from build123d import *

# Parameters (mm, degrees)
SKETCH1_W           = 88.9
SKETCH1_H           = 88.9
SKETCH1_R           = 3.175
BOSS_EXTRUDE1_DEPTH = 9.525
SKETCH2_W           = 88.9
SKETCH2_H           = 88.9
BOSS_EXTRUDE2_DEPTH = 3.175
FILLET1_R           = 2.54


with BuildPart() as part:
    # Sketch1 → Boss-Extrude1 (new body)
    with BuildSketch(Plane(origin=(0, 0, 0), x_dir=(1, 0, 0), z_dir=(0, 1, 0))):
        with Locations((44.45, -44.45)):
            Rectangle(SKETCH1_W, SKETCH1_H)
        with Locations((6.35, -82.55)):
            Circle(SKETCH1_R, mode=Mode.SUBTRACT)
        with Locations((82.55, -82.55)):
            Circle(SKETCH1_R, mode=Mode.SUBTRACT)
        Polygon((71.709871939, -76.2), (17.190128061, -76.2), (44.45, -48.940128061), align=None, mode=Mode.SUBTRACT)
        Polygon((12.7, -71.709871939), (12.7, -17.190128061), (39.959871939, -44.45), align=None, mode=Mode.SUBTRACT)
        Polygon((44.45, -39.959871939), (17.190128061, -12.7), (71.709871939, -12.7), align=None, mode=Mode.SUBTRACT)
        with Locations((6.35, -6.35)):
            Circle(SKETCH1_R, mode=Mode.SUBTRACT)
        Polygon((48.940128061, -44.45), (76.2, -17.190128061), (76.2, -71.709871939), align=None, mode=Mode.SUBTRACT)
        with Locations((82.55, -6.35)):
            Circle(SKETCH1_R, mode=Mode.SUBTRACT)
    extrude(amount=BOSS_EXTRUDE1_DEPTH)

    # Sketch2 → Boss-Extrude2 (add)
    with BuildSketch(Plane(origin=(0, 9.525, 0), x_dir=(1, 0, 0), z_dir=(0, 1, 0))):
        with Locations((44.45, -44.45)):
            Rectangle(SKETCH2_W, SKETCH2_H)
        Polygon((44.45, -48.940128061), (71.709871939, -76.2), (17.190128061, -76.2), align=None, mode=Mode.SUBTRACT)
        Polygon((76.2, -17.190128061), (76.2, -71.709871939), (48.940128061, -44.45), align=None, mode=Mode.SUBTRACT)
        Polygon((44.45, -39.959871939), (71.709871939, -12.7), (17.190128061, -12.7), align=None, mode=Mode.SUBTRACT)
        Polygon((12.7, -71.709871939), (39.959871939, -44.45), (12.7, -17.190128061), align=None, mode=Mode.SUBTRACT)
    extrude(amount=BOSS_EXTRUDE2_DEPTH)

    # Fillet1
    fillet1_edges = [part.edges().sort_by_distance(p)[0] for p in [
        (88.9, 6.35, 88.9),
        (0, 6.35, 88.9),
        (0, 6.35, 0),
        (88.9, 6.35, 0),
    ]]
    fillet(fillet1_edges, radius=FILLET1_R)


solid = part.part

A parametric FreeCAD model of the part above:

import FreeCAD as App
import Part
import Sketcher
Q = App.Units.Quantity


def edges_at(feature, points):
    """Names of the edges that pass closest to the given points."""
    edges = feature.Shape.Edges
    near = lambda p: min(range(len(edges)), key=lambda i: edges[i].distToShape(Part.Vertex(*p))[0])
    return sorted({f"Edge{near(p) + 1}" for p in points})


def add_polygon(sketch, points):
    """Adds a closed chain of lines whose ends are joined by coincident constraints."""
    first, n = sketch.GeometryCount, len(points)
    for a, b in zip(points, points[1:] + points[:1]):
        sketch.addGeometry(Part.LineSegment(App.Vector(*a, 0), App.Vector(*b, 0)), False)
    for i in range(n):
        sketch.addConstraint(Sketcher.Constraint("Coincident", first + i, 2, first + (i + 1) % n, 1))

doc = App.newDocument("Part")
body = doc.addObject("PartDesign::Body", "Body")

# Sketch on XZ plane
sketch1 = doc.addObject("Sketcher::SketchObject", "Sketch")
body.addObject(sketch1)
sketch1.AttachmentSupport = (doc.XZ_Plane, [""])
sketch1.MapMode = "FlatFace"
add_polygon(sketch1, [(0, 0), (0, 88.9), (88.9, 88.9), (88.9, 0)])  # lines 0-3
sketch1.addGeometry(Part.Circle(App.Vector(6.3, 82.5, 0), App.Vector(0, 0, 1), 3.2), False)  # 4
sketch1.addGeometry(Part.Circle(App.Vector(82.5, 82.5, 0), App.Vector(0, 0, 1), 3.2), False)  # 5
add_polygon(sketch1, [(44.5, 48.9), (71.7, 76.2), (17.2, 76.2)])  # lines 6-8
add_polygon(sketch1, [(40, 44.5), (12.7, 71.7), (12.7, 17.2)])  # lines 9-11
sketch1.addGeometry(Part.Circle(App.Vector(6.3, 6.3, 0), App.Vector(0, 0, 1), 3.2), False)  # 12
add_polygon(sketch1, [(76.2, 71.7), (48.9, 44.5), (76.2, 17.2)])  # lines 13-15
add_polygon(sketch1, [(71.7, 12.7), (44.5, 40), (17.2, 12.7)])  # lines 16-18
sketch1.addGeometry(Part.Circle(App.Vector(82.5, 6.3, 0), App.Vector(0, 0, 1), 3.2), False)  # 19
sketch1.addConstraint(Sketcher.Constraint("Vertical", 0))
sketch1.addConstraint(Sketcher.Constraint("Horizontal", 1))
sketch1.addConstraint(Sketcher.Constraint("Vertical", 2))
sketch1.addConstraint(Sketcher.Constraint("Horizontal", 3))
sketch1.addConstraint(Sketcher.Constraint("Horizontal", 7))
sketch1.addConstraint(Sketcher.Constraint("Vertical", 10))
sketch1.addConstraint(Sketcher.Constraint("Vertical", 15))
sketch1.addConstraint(Sketcher.Constraint("Horizontal", 18))
sketch1.addConstraint(Sketcher.Constraint("Coincident", 3, 2, -1, 1))
sketch1.addConstraint(Sketcher.Constraint("Equal", 4, 5))
sketch1.addConstraint(Sketcher.Constraint("Equal", 5, 12))
sketch1.addConstraint(Sketcher.Constraint("Equal", 12, 19))
sketch1.addConstraint(Sketcher.Constraint("Perpendicular", 6, 8))
sketch1.addConstraint(Sketcher.Constraint("Parallel", 8, 9))
sketch1.addConstraint(Sketcher.Constraint("Perpendicular", 9, 11))
sketch1.addConstraint(Sketcher.Constraint("Parallel", 11, 13))
sketch1.addConstraint(Sketcher.Constraint("Perpendicular", 13, 14))
sketch1.addConstraint(Sketcher.Constraint("Parallel", 14, 16))
sketch1.addConstraint(Sketcher.Constraint("Perpendicular", 16, 17))
sketch1.addConstraint(Sketcher.Constraint("Horizontal", 4, 3, 5, 3))
sketch1.addConstraint(Sketcher.Constraint("Horizontal", 12, 3, 19, 3))
sketch1.addConstraint(Sketcher.Constraint("Horizontal", 11, 2, 13, 2))
sketch1.addConstraint(Sketcher.Constraint("Horizontal", 10, 2, 14, 2))
sketch1.addConstraint(Sketcher.Constraint("Horizontal", 9, 2, 15, 2))
sketch1.addConstraint(Sketcher.Constraint("Vertical", 4, 3, 12, 3))
sketch1.addConstraint(Sketcher.Constraint("Vertical", 5, 3, 19, 3))
sketch1.addConstraint(Sketcher.Constraint("Vertical", 8, 2, 16, 2))
sketch1.addConstraint(Sketcher.Constraint("Vertical", 7, 2, 17, 2))
sketch1.addConstraint(Sketcher.Constraint("Equal", 3, 0))
sketch1.addConstraint(Sketcher.Constraint("Equal", 18, 10))
sketch1.addConstraint(Sketcher.Constraint("Diameter", 4, Q("0.25 in")))
sketch1.addConstraint(Sketcher.Constraint("DistanceX", 1, 1, 1, 2, Q("3.5 in")))
sketch1.addConstraint(Sketcher.Constraint("DistanceY", -1, 1, 6, 2, Q("3 in")))
sketch1.addConstraint(Sketcher.Constraint("DistanceX", -1, 1, 14, 2, Q("3 in")))
sketch1.addConstraint(Sketcher.Constraint("DistanceX", 4, 3, 5, 3, Q("3 in")))
sketch1.addConstraint(Sketcher.Constraint("DistanceY", 12, 3, 4, 3, Q("3 in")))
sketch1.addConstraint(Sketcher.Constraint("DistanceX", -1, 1, 9, 2, Q("0.5 in")))
sketch1.addConstraint(Sketcher.Constraint("DistanceY", -1, 1, 17, 2, Q("0.5 in")))
sketch1.addConstraint(Sketcher.Constraint("DistanceX", 8, 2, 5, 3, Q("1.5 in")))
sketch1.addConstraint(Sketcher.Constraint("DistanceX", -1, 1, 4, 3, Q("0.25 in")))
sketch1.addConstraint(Sketcher.Constraint("DistanceY", -1, 1, 4, 3, Q("3.25 in")))
sketch1.addConstraint(Sketcher.Constraint("DistanceY", -1, 1, 11, 2, Q("1.75 in")))
sketch1.addConstraint(Sketcher.Constraint("Distance", 6, Q("38.551281 mm")))
pad1 = doc.addObject("PartDesign::Pad", "Pad")
body.addObject(pad1)
pad1.Profile = sketch1
pad1.Length = Q("0.375 in")
pad1.Reversed = True

# Sketch on XZ plane
sketch2 = doc.addObject("Sketcher::SketchObject", "Sketch001")
body.addObject(sketch2)
sketch2.AttachmentSupport = (doc.XZ_Plane, [""])
sketch2.MapMode = "FlatFace"
sketch2.AttachmentOffset = App.Placement(App.Vector(0, 0, -0.375 * 25.4), App.Rotation())
add_polygon(sketch2, [(0, 0), (0, 89), (89, 89), (89, 0)])  # lines 0-3
add_polygon(sketch2, [(17, 76), (44, 49), (72, 76)])  # lines 4-6
add_polygon(sketch2, [(40, 44), (13, 72), (13, 17)])  # lines 7-9
add_polygon(sketch2, [(72, 13), (44, 40), (17, 13)])  # lines 10-12
add_polygon(sketch2, [(49, 44), (76, 17), (76, 72)])  # lines 13-15
sketch2.addConstraint(Sketcher.Constraint("Vertical", 0))
sketch2.addConstraint(Sketcher.Constraint("Horizontal", 1))
sketch2.addConstraint(Sketcher.Constraint("Vertical", 2))
sketch2.addConstraint(Sketcher.Constraint("Horizontal", 3))
sketch2.addConstraint(Sketcher.Constraint("Horizontal", 6))
sketch2.addConstraint(Sketcher.Constraint("Vertical", 8))
sketch2.addConstraint(Sketcher.Constraint("Horizontal", 12))
sketch2.addConstraint(Sketcher.Constraint("Vertical", 14))
sketch2.addConstraint(Sketcher.Constraint("Coincident", 3, 2, -1, 1))
sketch2.addConstraint(Sketcher.Constraint("Perpendicular", 4, 5))
sketch2.addConstraint(Sketcher.Constraint("Perpendicular", 5, 7))
sketch2.addConstraint(Sketcher.Constraint("Perpendicular", 7, 9))
sketch2.addConstraint(Sketcher.Constraint("Perpendicular", 9, 10))
sketch2.addConstraint(Sketcher.Constraint("Perpendicular", 10, 11))
sketch2.addConstraint(Sketcher.Constraint("Perpendicular", 11, 13))
sketch2.addConstraint(Sketcher.Constraint("Perpendicular", 13, 15))
sketch2.addConstraint(Sketcher.Constraint("Horizontal", 8, 2, 13, 2))
sketch2.addConstraint(Sketcher.Constraint("Horizontal", 7, 2, 14, 2))
sketch2.addConstraint(Sketcher.Constraint("Horizontal", 9, 2, 15, 2))
sketch2.addConstraint(Sketcher.Constraint("Vertical", 4, 2, 10, 2))
sketch2.addConstraint(Sketcher.Constraint("Vertical", 6, 2, 11, 2))
sketch2.addConstraint(Sketcher.Constraint("Equal", 3, 0))
sketch2.addConstraint(Sketcher.Constraint("Equal", 12, 8))
sketch2.addConstraint(Sketcher.Constraint("DistanceX", 1, 1, 1, 2, Q("3.5 in")))
sketch2.addConstraint(Sketcher.Constraint("DistanceY", -1, 1, 5, 2, Q("3 in")))
sketch2.addConstraint(Sketcher.Constraint("DistanceX", -1, 1, 13, 2, Q("3 in")))
sketch2.addConstraint(Sketcher.Constraint("DistanceX", -1, 1, 7, 2, Q("0.5 in")))
sketch2.addConstraint(Sketcher.Constraint("DistanceY", -1, 1, 11, 2, Q("0.5 in")))
sketch2.addConstraint(Sketcher.Constraint("DistanceX", -1, 1, 4, 2, Q("1.75 in")))
sketch2.addConstraint(Sketcher.Constraint("DistanceY", -1, 1, 9, 2, Q("1.75 in")))
sketch2.addConstraint(Sketcher.Constraint("Distance", 4, Q("38.551281 mm")))
pad2 = doc.addObject("PartDesign::Pad", "Pad001")
body.addObject(pad2)
pad2.Profile = sketch2
pad2.Length = Q("0.125 in")
pad2.Reversed = True
doc.recompute()

fillet = doc.addObject("PartDesign::Fillet", "Fillet")
body.addObject(fillet)
fillet.Base = (pad2, edges_at(pad2, [
    (88.9, 6.35, 88.9),
    (0, 6.35, 88.9),
    (0, 6.35, 0),
    (88.9, 6.35, 0),
]))
fillet.Radius = Q("0.1 in")

doc.recompute()
